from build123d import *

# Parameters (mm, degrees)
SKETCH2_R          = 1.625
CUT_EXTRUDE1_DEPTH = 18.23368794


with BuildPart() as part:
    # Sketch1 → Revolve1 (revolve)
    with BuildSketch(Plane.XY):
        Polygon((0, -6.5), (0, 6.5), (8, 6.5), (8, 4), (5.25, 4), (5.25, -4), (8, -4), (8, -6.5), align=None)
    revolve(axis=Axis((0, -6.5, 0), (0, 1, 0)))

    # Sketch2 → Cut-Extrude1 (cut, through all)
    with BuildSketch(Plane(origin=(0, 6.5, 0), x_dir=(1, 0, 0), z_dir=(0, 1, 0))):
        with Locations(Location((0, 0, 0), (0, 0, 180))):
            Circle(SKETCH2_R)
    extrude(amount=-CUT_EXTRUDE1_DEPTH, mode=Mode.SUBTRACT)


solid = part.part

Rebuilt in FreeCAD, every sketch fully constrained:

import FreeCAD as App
import Part
import Sketcher
Q = App.Units.Quantity


def add_polygon(sketch, points):
    """Adds a closed chain of lines whose ends are joined by coincident constraints."""
    first, n = sketch.GeometryCount, len(points)
    for a, b in zip(points, points[1:] + points[:1]):
        sketch.addGeometry(Part.LineSegment(App.Vector(*a, 0), App.Vector(*b, 0)), False)
    for i in range(n):
        sketch.addConstraint(Sketcher.Constraint("Coincident", first + i, 2, first + (i + 1) % n, 1))

doc = App.newDocument("Part")
params = doc.addObject("Spreadsheet::Sheet", "Params")
for row, (alias, value) in enumerate([
    ("sketch1_width", "8 mm"),
    ("sketch1_height", "13 mm"),
    ("sketch1_width2", "2.75 mm"),
    ("revolution_angle", "360 deg"),
    ("sketch2_diameter", "3.25 mm"),
], start=1):
    params.set(f"A{row}", alias)
    params.set(f"B{row}", "=" + value)
    params.setAlias(f"B{row}", alias)

body = doc.addObject("PartDesign::Body", "Body")

sketch1 = body.newObject("Sketcher::SketchObject", "Sketch")
sketch1.AttachmentSupport = (doc.getObject("XY_Plane"), [""])
sketch1.MapMode = "FlatFace"
add_polygon(sketch1, [(0, 6.5), (0, -6.5), (8, -6.5), (8, -4), (5.25, -4), (5.25, 4), (8, 4), (8, 6.5)])
sketch1.addConstraint([
    Sketcher.Constraint("Vertical", 0),
    Sketcher.Constraint("Horizontal", 1),
    Sketcher.Constraint("Vertical", 2),
    Sketcher.Constraint("Horizontal", 3),
    Sketcher.Constraint("Vertical", 4),
    Sketcher.Constraint("Horizontal", 5),
    Sketcher.Constraint("Vertical", 6),
    Sketcher.Constraint("Horizontal", 7),
    Sketcher.Constraint("Symmetric", 0, 2, 7, 2, -1, 1),
    Sketcher.Constraint("Symmetric", 2, 2, 5, 2, -1),
    Sketcher.Constraint("Equal", 7, 4),
    Sketcher.Constraint("DistanceX", 1, 1, 1, 2, Q("8 mm")),
    Sketcher.Constraint("DistanceY", 0, 2, 0, 1, Q("13 mm")),
    Sketcher.Constraint("DistanceX", 3, 2, 3, 1, Q("2.75 mm")),
])
sketch1.setExpression("Constraints[19]", "Params.sketch1_width")
sketch1.setExpression("Constraints[20]", "Params.sketch1_height")
sketch1.setExpression("Constraints[21]", "Params.sketch1_width2")
revolution = body.newObject("PartDesign::Revolution", "Revolution")
revolution.Profile = sketch1
revolution.ReferenceAxis = (sketch1, ["V_Axis"])
revolution.setExpression("Angle", "Params.revolution_angle")

sketch2 = body.newObject("Sketcher::SketchObject", "Sketch001")
sketch2.AttachmentSupport = (doc.getObject("XZ_Plane"), [""])
sketch2.MapMode = "FlatFace"
sketch2.AttachmentOffset = App.Placement(App.Vector(0, 0, -6.5), App.Rotation())
sketch2.addGeometry(Part.Circle(App.Vector(0, 0, 0), App.Vector(0, 0, 1), 1.625), False)
sketch2.addConstraint([
    Sketcher.Constraint("Coincident", 0, 3, -1, 1),
    Sketcher.Constraint("Diameter", 0, Q("3.25 mm")),
])
sketch2.setExpression("Constraints[1]", "Params.sketch2_diameter")
pocket1 = body.newObject("PartDesign::Pocket", "Pocket")
pocket1.Profile = sketch2
pocket1.Type = "ThroughAll"
pocket1.Reversed = True

doc.recompute()
